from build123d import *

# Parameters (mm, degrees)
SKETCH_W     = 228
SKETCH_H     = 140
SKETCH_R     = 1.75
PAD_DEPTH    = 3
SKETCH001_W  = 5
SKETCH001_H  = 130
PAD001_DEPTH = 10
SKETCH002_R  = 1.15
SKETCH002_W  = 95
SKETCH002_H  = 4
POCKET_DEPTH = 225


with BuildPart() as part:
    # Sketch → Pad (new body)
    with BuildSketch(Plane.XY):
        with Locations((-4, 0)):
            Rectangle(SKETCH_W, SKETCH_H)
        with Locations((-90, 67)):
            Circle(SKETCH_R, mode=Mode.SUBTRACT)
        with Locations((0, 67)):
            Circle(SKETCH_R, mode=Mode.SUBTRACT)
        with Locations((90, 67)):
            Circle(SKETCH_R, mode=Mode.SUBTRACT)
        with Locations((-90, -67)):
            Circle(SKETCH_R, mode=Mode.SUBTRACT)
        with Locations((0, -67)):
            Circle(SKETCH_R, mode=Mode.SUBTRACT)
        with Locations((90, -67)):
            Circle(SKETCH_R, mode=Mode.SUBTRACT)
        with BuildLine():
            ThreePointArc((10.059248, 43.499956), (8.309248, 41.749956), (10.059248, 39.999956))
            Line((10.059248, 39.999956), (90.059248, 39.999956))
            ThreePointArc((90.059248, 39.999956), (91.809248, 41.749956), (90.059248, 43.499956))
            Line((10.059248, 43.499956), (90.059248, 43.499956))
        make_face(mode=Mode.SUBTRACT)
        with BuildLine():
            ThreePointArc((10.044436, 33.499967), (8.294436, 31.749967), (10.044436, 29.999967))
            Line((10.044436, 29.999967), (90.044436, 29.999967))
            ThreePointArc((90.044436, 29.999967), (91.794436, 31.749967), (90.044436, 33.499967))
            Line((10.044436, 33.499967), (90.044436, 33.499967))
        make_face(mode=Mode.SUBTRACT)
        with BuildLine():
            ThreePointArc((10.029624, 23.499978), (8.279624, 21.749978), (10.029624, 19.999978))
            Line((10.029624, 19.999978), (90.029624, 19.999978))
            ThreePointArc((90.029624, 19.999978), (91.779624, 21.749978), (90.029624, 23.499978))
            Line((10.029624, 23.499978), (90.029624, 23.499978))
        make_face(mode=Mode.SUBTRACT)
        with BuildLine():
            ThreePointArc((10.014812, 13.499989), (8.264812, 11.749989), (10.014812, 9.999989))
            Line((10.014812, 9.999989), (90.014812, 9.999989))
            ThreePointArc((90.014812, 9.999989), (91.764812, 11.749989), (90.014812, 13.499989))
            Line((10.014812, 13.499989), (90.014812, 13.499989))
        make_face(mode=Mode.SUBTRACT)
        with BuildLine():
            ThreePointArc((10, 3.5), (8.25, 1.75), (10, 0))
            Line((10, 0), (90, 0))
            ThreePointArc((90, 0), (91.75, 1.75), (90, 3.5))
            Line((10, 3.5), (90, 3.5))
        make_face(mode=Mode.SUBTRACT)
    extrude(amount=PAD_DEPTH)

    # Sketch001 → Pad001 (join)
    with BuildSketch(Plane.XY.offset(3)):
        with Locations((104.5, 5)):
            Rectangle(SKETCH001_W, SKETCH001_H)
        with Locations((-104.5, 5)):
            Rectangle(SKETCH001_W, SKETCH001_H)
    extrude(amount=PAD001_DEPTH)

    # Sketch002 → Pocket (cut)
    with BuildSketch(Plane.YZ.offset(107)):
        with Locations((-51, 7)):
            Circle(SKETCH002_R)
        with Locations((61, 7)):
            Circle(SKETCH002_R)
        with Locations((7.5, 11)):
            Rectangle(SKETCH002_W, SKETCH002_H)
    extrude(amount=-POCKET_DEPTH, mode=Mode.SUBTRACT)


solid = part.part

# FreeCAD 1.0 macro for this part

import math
import FreeCAD as App
import Part
import Sketcher
from FreeCAD import Vector


def add_polygon(sketch, points):
    """Adds a closed chain of lines whose ends are joined by coincident constraints."""
    first, n = sketch.GeometryCount, len(points)
    for a, b in zip(points, points[1:] + points[:1]):
        sketch.addGeometry(Part.LineSegment(App.Vector(*a, 0), App.Vector(*b, 0)), False)
    for i in range(n):
        sketch.addConstraint(Sketcher.Constraint("Coincident", first + i, 2, first + (i + 1) % n, 1))

doc = App.newDocument("Part")
params = doc.addObject("Spreadsheet::Sheet", "Params")
for row, (alias, value) in enumerate([
    ("sketch1_diameter", "3.5 mm"),
    ("sketch1_width", "228 mm"),
    ("sketch1_width2", "80 mm"),
    ("sketch1_height", "140 mm"),
    ("pad1_length", "3 mm"),
    ("sketch2_width", "5 mm"),
    ("sketch2_height", "130 mm"),
    ("pad2_length", "10 mm"),
    ("sketch3_diameter", "2.3 mm"),
    ("sketch3_width", "95 mm"),
    ("sketch3_height", "4 mm"),
    ("pocket1_length", "225 mm"),
], start=1):
    params.set(f"A{row}", alias)
    params.set(f"B{row}", "=" + value)
    params.setAlias(f"B{row}", alias)

body = doc.addObject("PartDesign::Body", "Body")

sketch1 = body.newObject("Sketcher::SketchObject", "Sketch")
sketch1.AttachmentSupport = (doc.getObject("XY_Plane"), [""])
sketch1.MapMode = "FlatFace"
add_polygon(sketch1, [(-118, 70), (-118, -70), (110, -70), (110, 70)])
sketch1.addGeometry(Part.Circle(Vector(-90, -67, 0), Vector(0, 0, 1), 1.75), False)
sketch1.addGeometry(Part.Circle(Vector(0, -67, 0), Vector(0, 0, 1), 1.75), False)
sketch1.addGeometry(Part.Circle(Vector(90, -67, 0), Vector(0, 0, 1), 1.75), False)
sketch1.addGeometry(Part.Circle(Vector(-90, 67, 0), Vector(0, 0, 1), 1.75), False)
sketch1.addGeometry(Part.Circle(Vector(0, 67, 0), Vector(0, 0, 1), 1.75), False)
sketch1.addGeometry(Part.ArcOfCircle(Part.Circle(Vector(10, 1.75, 0), Vector(0, 0, 1), 1.75), math.radians(90), math.radians(270)), False)
sketch1.addGeometry(Part.LineSegment(Vector(10, 3.5, 0), Vector(90, 3.5, 0)), False)
sketch1.addGeometry(Part.ArcOfCircle(Part.Circle(Vector(90, 1.75, 0), Vector(0, 0, 1), 1.75), math.radians(-90), math.radians(90)), False)
sketch1.addGeometry(Part.LineSegment(Vector(90, 0, 0), Vector(10, 0, 0)), False)
sketch1.addGeometry(Part.ArcOfCircle(Part.Circle(Vector(10.014812, 11.749989, 0), Vector(0, 0, 1), 1.75), math.radians(90), math.radians(270)), False)
sketch1.addGeometry(Part.LineSegment(Vector(10.014812, 13.499989, 0), Vector(90.014812, 13.499989, 0)), False)
sketch1.addGeometry(Part.ArcOfCircle(Part.Circle(Vector(90.014812, 11.749989, 0), Vector(0, 0, 1), 1.75), math.radians(-90), math.radians(90)), False)
sketch1.addGeometry(Part.LineSegment(Vector(90.014812, 9.999989, 0), Vector(10.014812, 9.999989, 0)), False)
sketch1.addGeometry(Part.ArcOfCircle(Part.Circle(Vector(10.029624, 21.749978, 0), Vector(0, 0, 1), 1.75), math.radians(90), math.radians(270)), False)
sketch1.addGeometry(Part.LineSegment(Vector(10.029624, 23.499978, 0), Vector(90.029624, 23.499978, 0)), False)
sketch1.addGeometry(Part.ArcOfCircle(Part.Circle(Vector(90.029624, 21.749978, 0), Vector(0, 0, 1), 1.75), math.radians(-90), math.radians(90)), False)
sketch1.addGeometry(Part.LineSegment(Vector(90.029624, 19.999978, 0), Vector(10.029624, 19.999978, 0)), False)
sketch1.addGeometry(Part.ArcOfCircle(Part.Circle(Vector(10.044436, 31.749967, 0), Vector(0, 0, 1), 1.75), math.radians(90), math.radians(270)), False)
sketch1.addGeometry(Part.LineSegment(Vector(10.044436, 33.499967, 0), Vector(90.044436, 33.499967, 0)), False)
sketch1.addGeometry(Part.ArcOfCircle(Part.Circle(Vector(90.044436, 31.749967, 0), Vector(0, 0, 1), 1.75), math.radians(-90), math.radians(90)), False)
sketch1.addGeometry(Part.LineSegment(Vector(90.044436, 29.999967, 0), Vector(10.044436, 29.999967, 0)), False)
sketch1.addGeometry(Part.ArcOfCircle(Part.Circle(Vector(10.059248, 41.749956, 0), Vector(0, 0, 1), 1.75), math.radians(90), math.radians(270)), False)
sketch1.addGeometry(Part.LineSegment(Vector(10.059248, 43.499956, 0), Vector(90.059248, 43.499956, 0)), False)
sketch1.addGeometry(Part.ArcOfCircle(Part.Circle(Vector(90.059248, 41.749956, 0), Vector(0, 0, 1), 1.75), math.radians(-90), math.radians(90)), False)
sketch1.addGeometry(Part.LineSegment(Vector(90.059248, 39.999956, 0), Vector(10.059248, 39.999956, 0)), False)
sketch1.addGeometry(Part.Circle(Vector(90, 67, 0), Vector(0, 0, 1), 1.75), False)
sketch1.addConstraint([
    Sketcher.Constraint("Tangent", 9, 1, 10, 1),
    Sketcher.Constraint("Tangent", 10, 2, 11, 2),
    Sketcher.Constraint("Tangent", 11, 1, 12, 1),
    Sketcher.Constraint("Tangent", 12, 2, 9, 2),
    Sketcher.Constraint("Tangent", 13, 1, 14, 1),
    Sketcher.Constraint("Tangent", 14, 2, 15, 2),
    Sketcher.Constraint("Tangent", 15, 1, 16, 1),
    Sketcher.Constraint("Tangent", 16, 2, 13, 2),
    Sketcher.Constraint("Tangent", 17, 1, 18, 1),
    Sketcher.Constraint("Tangent", 18, 2, 19, 2),
    Sketcher.Constraint("Tangent", 19, 1, 20, 1),
    Sketcher.Constraint("Tangent", 20, 2, 17, 2),
    Sketcher.Constraint("Tangent", 21, 1, 22, 1),
    Sketcher.Constraint("Tangent", 22, 2, 23, 2),
    Sketcher.Constraint("Tangent", 23, 1, 24, 1),
    Sketcher.Constraint("Tangent", 24, 2, 21, 2),
    Sketcher.Constraint("Tangent", 25, 1, 26, 1),
    Sketcher.Constraint("Tangent", 26, 2, 27, 2),
    Sketcher.Constraint("Tangent", 27, 1, 28, 1),
    Sketcher.Constraint("Tangent", 28, 2, 25, 2),
    Sketcher.Constraint("Vertical", 0),
    Sketcher.Constraint("Horizontal", 1),
    Sketcher.Constraint("Vertical", 2),
    Sketcher.Constraint("Horizontal", 3),
    Sketcher.Constraint("Horizontal", 10),
    Sketcher.Constraint("Horizontal", 12),
    Sketcher.Constraint("Horizontal", 14),
    Sketcher.Constraint("Horizontal", 16),
    Sketcher.Constraint("Horizontal", 18),
    Sketcher.Constraint("Horizontal", 20),
    Sketcher.Constraint("Horizontal", 22),
    Sketcher.Constraint("Horizontal", 24),
    Sketcher.Constraint("Horizontal", 26),
    Sketcher.Constraint("Horizontal", 28),
    Sketcher.Constraint("Equal", 4, 5),
    Sketcher.Constraint("Equal", 5, 6),
    Sketcher.Constraint("Equal", 6, 7),
    Sketcher.Constraint("Equal", 7, 8),
    Sketcher.Constraint("Equal", 8, 9),
    Sketcher.Constraint("Equal", 11, 13),
    Sketcher.Constraint("Equal", 15, 17),
    Sketcher.Constraint("Equal", 19, 21),
    Sketcher.Constraint("Equal", 23, 25),
    Sketcher.Constraint("Equal", 27, 29),
    Sketcher.Constraint("Symmetric", 6, 3, 7, 3, -1, 1),
    Sketcher.Constraint("Symmetric", 5, 3, 8, 3, -1, 1),
    Sketcher.Constraint("Symmetric", 4, 3, 29, 3, -1, 1),
    Sketcher.Constraint("Symmetric", 4, 3, 6, 3, -2),
    Sketcher.Constraint("PointOnObject", 5, 3, -2),
    Sketcher.Constraint("PointOnObject", 11, 1, -1),
    Sketcher.Constraint("Horizontal", 4, 3, 5, 3),
    Sketcher.Constraint("Vertical", 6, 3, 11, 3),
    Sketcher.Constraint("Equal", 12, 14),
    Sketcher.Constraint("Equal", 16, 18),
    Sketcher.Constraint("Equal", 20, 22),
    Sketcher.Constraint("Equal", 24, 26),
    Sketcher.Constraint("Diameter", 4, 3.5),
    Sketcher.Constraint("DistanceX", 1, 1, 1, 2, 228.0),
    Sketcher.Constraint("DistanceX", 10, 1, 10, 2, 80.0),
    Sketcher.Constraint("DistanceY", 0, 2, 0, 1, 140.0),
    Sketcher.Constraint("DistanceX", 4, 3, -1, 1, 90.0),
    Sketcher.Constraint("DistanceY", 4, 3, -1, 1, 67.0),
    Sketcher.Constraint("DistanceX", 0, 2, -1, 1, 118.0),
    Sketcher.Constraint("DistanceY", 0, 2, -1, 1, 70.0),
    Sketcher.Constraint("DistanceX", -1, 1, 13, 3, 10.014812),
    Sketcher.Constraint("DistanceY", -1, 1, 13, 3, 11.749989),
    Sketcher.Constraint("DistanceY", 13, 3, 17, 3, 9.999989),
    Sketcher.Constraint("DistanceX", 17, 3, 15, 3, 79.985188),
    Sketcher.Constraint("DistanceX", 17, 3, 21, 3, 0.014812),
    Sketcher.Constraint("DistanceY", 17, 3, 21, 3, 9.999989),
    Sketcher.Constraint("DistanceY", 21, 3, 25, 3, 9.999989),
    Sketcher.Constraint("DistanceX", 9, 3, 25, 3, 0.059248),
])
sketch1.setExpression("Constraints[60]", "Params.sketch1_diameter")
sketch1.setExpression("Constraints[61]", "Params.sketch1_width")
sketch1.setExpression("Constraints[62]", "Params.sketch1_width2")
sketch1.setExpression("Constraints[63]", "Params.sketch1_height")
pad1 = body.newObject("PartDesign::Pad", "Pad")
pad1.Profile = sketch1
pad1.setExpression("Length", "Params.pad1_length")

sketch2 = body.newObject("Sketcher::SketchObject", "Sketch001")
sketch2.AttachmentSupport = (doc.getObject("XY_Plane"), [""])
sketch2.MapMode = "FlatFace"
sketch2.AttachmentOffset = App.Placement(Vector(0, 0, 3), App.Rotation())
add_polygon(sketch2, [(102, 70), (102, -60), (107, -60), (107, 70)])
add_polygon(sketch2, [(-107, 70), (-107, -60), (-102, -60), (-102, 70)])
sketch2.addConstraint([
    Sketcher.Constraint("Vertical", 0),
    Sketcher.Constraint("Horizontal", 1),
    Sketcher.Constraint("Vertical", 2),
    Sketcher.Constraint("Horizontal", 3),
    Sketcher.Constraint("Vertical", 4),
    Sketcher.Constraint("Horizontal", 5),
    Sketcher.Constraint("Vertical", 6),
    Sketcher.Constraint("Horizontal", 7),
    Sketcher.Constraint("Symmetric", 1, 2, 4, 2, -2),
    Sketcher.Constraint("Symmetric", 3, 2, 6, 2, -2),
    Sketcher.Constraint("DistanceX", 1, 1, 1, 2, 5.0),
    Sketcher.Constraint("DistanceY", 0, 2, 0, 1, 130.0),
    Sketcher.Constraint("DistanceX", -1, 1, 0, 2, 102.0),
    Sketcher.Constraint("DistanceY", 0, 2, -1, 1, 60.0),
])
sketch2.setExpression("Constraints[18]", "Params.sketch2_width")
sketch2.setExpression("Constraints[19]", "Params.sketch2_height")
pad2 = body.newObject("PartDesign::Pad", "Pad001")
pad2.Profile = sketch2
pad2.setExpression("Length", "Params.pad2_length")

sketch3 = body.newObject("Sketcher::SketchObject", "Sketch002")
sketch3.AttachmentSupport = (doc.getObject("YZ_Plane"), [""])
sketch3.MapMode = "FlatFace"
sketch3.AttachmentOffset = App.Placement(Vector(0, 0, 107), App.Rotation())
sketch3.addGeometry(Part.Circle(Vector(-51, 7, 0), Vector(0, 0, 1), 1.15), False)
sketch3.addGeometry(Part.Circle(Vector(61, 7, 0), Vector(0, 0, 1), 1.15), False)
add_polygon(sketch3, [(-40, 13), (-40, 9), (55, 9), (55, 13)])
sketch3.addConstraint([
    Sketcher.Constraint("Vertical", 2),
    Sketcher.Constraint("Horizontal", 3),
    Sketcher.Constraint("Vertical", 4),
    Sketcher.Constraint("Horizontal", 5),
    Sketcher.Constraint("Equal", 0, 1),
    Sketcher.Constraint("Horizontal", 0, 3, 1, 3),
    Sketcher.Constraint("Diameter", 0, 2.3),
    Sketcher.Constraint("DistanceX", 3, 1, 3, 2, 95.0),
    Sketcher.Constraint("DistanceY", 2, 2, 2, 1, 4.0),
    Sketcher.Constraint("DistanceX", 0, 3, -1, 1, 51.0),
    Sketcher.Constraint("DistanceY", -1, 1, 0, 3, 7.0),
    Sketcher.Constraint("DistanceX", -1, 1, 1, 3, 61.0),
    Sketcher.Constraint("DistanceX", 2, 2, -1, 1, 40.0),
    Sketcher.Constraint("DistanceY", -1, 1, 2, 2, 9.0),
])
sketch3.setExpression("Constraints[10]", "Params.sketch3_diameter")
sketch3.setExpression("Constraints[11]", "Params.sketch3_width")
sketch3.setExpression("Constraints[12]", "Params.sketch3_height")
pocket1 = body.newObject("PartDesign::Pocket", "Pocket")
pocket1.Profile = sketch3
pocket1.setExpression("Length", "Params.pocket1_length")

doc.recompute()
